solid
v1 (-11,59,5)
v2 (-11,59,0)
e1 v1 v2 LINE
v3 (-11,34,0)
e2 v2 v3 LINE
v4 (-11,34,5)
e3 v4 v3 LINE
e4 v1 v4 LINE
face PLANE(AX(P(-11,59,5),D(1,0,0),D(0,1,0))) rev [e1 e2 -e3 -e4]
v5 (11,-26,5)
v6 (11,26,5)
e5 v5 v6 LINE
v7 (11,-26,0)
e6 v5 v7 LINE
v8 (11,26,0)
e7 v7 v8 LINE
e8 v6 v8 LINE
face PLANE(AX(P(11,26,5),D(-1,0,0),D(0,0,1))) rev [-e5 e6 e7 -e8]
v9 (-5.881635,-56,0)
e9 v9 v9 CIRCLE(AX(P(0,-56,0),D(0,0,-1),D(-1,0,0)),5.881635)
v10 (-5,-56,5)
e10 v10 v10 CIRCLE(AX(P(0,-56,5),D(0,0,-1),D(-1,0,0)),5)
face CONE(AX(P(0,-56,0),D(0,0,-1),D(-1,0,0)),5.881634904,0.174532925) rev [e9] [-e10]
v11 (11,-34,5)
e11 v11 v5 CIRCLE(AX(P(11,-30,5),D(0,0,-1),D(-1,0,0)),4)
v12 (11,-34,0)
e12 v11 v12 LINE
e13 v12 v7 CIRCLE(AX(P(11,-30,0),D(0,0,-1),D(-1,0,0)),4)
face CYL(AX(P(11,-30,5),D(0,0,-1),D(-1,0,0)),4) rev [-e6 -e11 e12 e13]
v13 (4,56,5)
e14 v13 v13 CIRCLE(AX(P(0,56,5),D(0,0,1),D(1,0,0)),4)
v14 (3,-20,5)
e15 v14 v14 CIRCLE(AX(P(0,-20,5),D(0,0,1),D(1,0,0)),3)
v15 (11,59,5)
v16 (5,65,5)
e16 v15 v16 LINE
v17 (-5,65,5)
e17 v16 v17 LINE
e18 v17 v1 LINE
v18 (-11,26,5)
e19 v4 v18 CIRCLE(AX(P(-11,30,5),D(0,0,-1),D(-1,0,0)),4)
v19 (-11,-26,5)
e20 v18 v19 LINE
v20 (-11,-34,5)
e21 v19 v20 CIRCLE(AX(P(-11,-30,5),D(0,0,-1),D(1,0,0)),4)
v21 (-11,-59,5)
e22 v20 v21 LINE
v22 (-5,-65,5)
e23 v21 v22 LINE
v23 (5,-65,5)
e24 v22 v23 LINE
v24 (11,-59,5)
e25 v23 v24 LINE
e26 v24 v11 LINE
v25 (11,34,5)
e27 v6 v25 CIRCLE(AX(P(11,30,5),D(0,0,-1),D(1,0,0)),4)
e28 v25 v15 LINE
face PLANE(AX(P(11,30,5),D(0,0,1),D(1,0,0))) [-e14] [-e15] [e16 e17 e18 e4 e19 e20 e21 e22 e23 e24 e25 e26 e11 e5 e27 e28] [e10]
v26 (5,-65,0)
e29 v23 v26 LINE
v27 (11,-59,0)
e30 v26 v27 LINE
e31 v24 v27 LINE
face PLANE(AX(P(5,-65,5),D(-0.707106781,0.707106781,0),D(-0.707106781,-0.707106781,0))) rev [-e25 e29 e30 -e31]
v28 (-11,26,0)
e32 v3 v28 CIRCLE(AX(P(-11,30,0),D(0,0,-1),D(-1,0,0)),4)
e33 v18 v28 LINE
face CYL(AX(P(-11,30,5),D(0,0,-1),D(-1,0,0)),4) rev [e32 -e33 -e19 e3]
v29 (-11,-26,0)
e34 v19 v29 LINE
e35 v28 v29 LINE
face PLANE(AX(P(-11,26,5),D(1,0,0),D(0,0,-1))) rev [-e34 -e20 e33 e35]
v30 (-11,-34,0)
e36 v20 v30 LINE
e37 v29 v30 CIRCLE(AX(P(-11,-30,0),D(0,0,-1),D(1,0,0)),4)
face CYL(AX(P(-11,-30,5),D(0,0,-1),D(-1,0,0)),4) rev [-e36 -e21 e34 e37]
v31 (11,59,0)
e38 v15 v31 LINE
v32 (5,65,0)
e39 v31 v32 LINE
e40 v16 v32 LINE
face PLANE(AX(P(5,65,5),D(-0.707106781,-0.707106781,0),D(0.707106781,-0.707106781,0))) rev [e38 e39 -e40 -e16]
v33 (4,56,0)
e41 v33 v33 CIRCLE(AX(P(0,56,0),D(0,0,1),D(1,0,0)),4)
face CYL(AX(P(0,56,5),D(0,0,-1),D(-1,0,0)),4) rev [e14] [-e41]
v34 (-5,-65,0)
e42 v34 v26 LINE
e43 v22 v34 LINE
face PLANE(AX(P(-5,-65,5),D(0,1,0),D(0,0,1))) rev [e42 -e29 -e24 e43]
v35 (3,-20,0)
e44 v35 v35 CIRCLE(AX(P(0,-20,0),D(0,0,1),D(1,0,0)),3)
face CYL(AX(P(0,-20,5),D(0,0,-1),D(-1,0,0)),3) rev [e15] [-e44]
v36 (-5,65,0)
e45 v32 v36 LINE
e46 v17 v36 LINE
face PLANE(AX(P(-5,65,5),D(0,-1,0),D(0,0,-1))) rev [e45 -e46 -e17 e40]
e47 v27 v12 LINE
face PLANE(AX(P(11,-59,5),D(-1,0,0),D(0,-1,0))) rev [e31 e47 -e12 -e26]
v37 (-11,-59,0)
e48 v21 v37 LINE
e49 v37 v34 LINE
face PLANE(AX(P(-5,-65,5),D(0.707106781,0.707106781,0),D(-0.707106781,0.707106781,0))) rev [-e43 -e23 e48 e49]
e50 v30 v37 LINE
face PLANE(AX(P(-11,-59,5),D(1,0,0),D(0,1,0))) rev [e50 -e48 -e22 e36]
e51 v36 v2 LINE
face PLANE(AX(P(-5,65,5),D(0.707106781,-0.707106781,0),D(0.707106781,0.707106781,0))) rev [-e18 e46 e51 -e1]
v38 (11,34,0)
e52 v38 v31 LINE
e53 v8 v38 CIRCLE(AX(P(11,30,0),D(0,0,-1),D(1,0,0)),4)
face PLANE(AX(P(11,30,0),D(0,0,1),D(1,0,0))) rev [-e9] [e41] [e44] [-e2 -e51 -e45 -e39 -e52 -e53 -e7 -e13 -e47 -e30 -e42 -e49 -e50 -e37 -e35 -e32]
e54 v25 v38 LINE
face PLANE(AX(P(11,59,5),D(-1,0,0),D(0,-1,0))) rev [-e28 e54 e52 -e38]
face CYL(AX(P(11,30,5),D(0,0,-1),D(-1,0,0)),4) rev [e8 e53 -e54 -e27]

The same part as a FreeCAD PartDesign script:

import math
import FreeCAD as App
import Part
import Sketcher
from FreeCAD import Vector
Q = App.Units.Quantity

doc = App.newDocument("Part")
body = doc.addObject("PartDesign::Body", "Body")

sketch1 = body.newObject("Sketcher::SketchObject", "Sketch")
sketch1.AttachmentSupport = (doc.getObject("XY_Plane"), [""])
sketch1.MapMode = "FlatFace"
sketch1.addGeometry([
    Part.LineSegment(Vector(5, 65, 0), Vector(-5, 65, 0)),
    Part.LineSegment(Vector(-5, 65, 0), Vector(-11, 59, 0)),
    Part.LineSegment(Vector(-11, 59, 0), Vector(-11, 34, 0)),
    Part.ArcOfCircle(Part.Circle(Vector(-11, 30, 0), Vector(0, 0, 1), 4), math.radians(-90), math.radians(90)),
    Part.LineSegment(Vector(-11, 26, 0), Vector(-11, -26, 0)),
    Part.ArcOfCircle(Part.Circle(Vector(-11, -30, 0), Vector(0, 0, 1), 4), math.radians(-90), math.radians(90)),
    Part.LineSegment(Vector(-11, -34, 0), Vector(-11, -59, 0)),
    Part.LineSegment(Vector(-11, -59, 0), Vector(-5, -65, 0)),
    Part.LineSegment(Vector(-5, -65, 0), Vector(5, -65, 0)),
    Part.LineSegment(Vector(5, -65, 0), Vector(11, -59, 0)),
    Part.LineSegment(Vector(11, -59, 0), Vector(11, -34, 0)),
    Part.ArcOfCircle(Part.Circle(Vector(11, -30, 0), Vector(0, 0, 1), 4), math.radians(90), math.radians(270)),
    Part.LineSegment(Vector(11, -26, 0), Vector(11, 26, 0)),
    Part.ArcOfCircle(Part.Circle(Vector(11, 30, 0), Vector(0, 0, 1), 4), math.radians(90), math.radians(270)),
    Part.LineSegment(Vector(11, 34, 0), Vector(11, 59, 0)),
    Part.LineSegment(Vector(11, 59, 0), Vector(5, 65, 0)),
    Part.Circle(Vector(0, -20, 0), Vector(0, 0, 1), 3),
    Part.Circle(Vector(0, 56, 0), Vector(0, 0, 1), 4),
], False)
sketch1.addConstraint([
    Sketcher.Constraint("Coincident", 0, 2, 1, 1),
    Sketcher.Constraint("Coincident", 1, 2, 2, 1),
    Sketcher.Constraint("Coincident", 2, 2, 3, 2),
    Sketcher.Constraint("Coincident", 3, 1, 4, 1),
    Sketcher.Constraint("Coincident", 4, 2, 5, 2),
    Sketcher.Constraint("Coincident", 5, 1, 6, 1),
    Sketcher.Constraint("Coincident", 6, 2, 7, 1),
    Sketcher.Constraint("Coincident", 7, 2, 8, 1),
    Sketcher.Constraint("Coincident", 8, 2, 9, 1),
    Sketcher.Constraint("Coincident", 9, 2, 10, 1),
    Sketcher.Constraint("Coincident", 10, 2, 11, 2),
    Sketcher.Constraint("Coincident", 11, 1, 12, 1),
    Sketcher.Constraint("Coincident", 12, 2, 13, 2),
    Sketcher.Constraint("Coincident", 13, 1, 14, 1),
    Sketcher.Constraint("Coincident", 14, 2, 15, 1),
    Sketcher.Constraint("Coincident", 15, 2, 0, 1),
    Sketcher.Constraint("Horizontal", 0),
    Sketcher.Constraint("Vertical", 2),
    Sketcher.Constraint("Vertical", 4),
    Sketcher.Constraint("Vertical", 6),
    Sketcher.Constraint("Horizontal", 8),
    Sketcher.Constraint("Vertical", 10),
    Sketcher.Constraint("Vertical", 12),
    Sketcher.Constraint("Vertical", 14),
    Sketcher.Constraint("Equal", 3, 5),
    Sketcher.Constraint("Equal", 5, 11),
    Sketcher.Constraint("Equal", 11, 13),
    Sketcher.Constraint("Equal", 13, 17),
    Sketcher.Constraint("Symmetric", 3, 3, 11, 3, -1, 1),
    Sketcher.Constraint("Symmetric", 5, 3, 13, 3, -1, 1),
    Sketcher.Constraint("Symmetric", 0, 2, 8, 2, -1, 1),
    Sketcher.Constraint("Symmetric", 1, 2, 9, 2, -1, 1),
    Sketcher.Constraint("Symmetric", 6, 2, 14, 2, -1, 1),
    Sketcher.Constraint("Symmetric", 5, 3, 11, 3, -2),
    Sketcher.Constraint("Symmetric", 6, 2, 9, 2, -2),
    Sketcher.Constraint("PointOnObject", 16, 3, -2),
    Sketcher.Constraint("PointOnObject", 17, 3, -2),
    Sketcher.Constraint("Perpendicular", 1, 7),
    Sketcher.Constraint("Perpendicular", 9, 15),
    Sketcher.Constraint("Vertical", 5, 3, 1, 2),
    Sketcher.Constraint("Vertical", 2, 2, 3, 1),
    Sketcher.Constraint("Vertical", 0, 2, 7, 2),
    Sketcher.Constraint("Vertical", 10, 2, 11, 1),
    Sketcher.Constraint("Diameter", 16, 6.0),
    Sketcher.Constraint("Diameter", 17, 8.0),
    Sketcher.Constraint("DistanceX", 0, 2, 0, 1, 10.0),
    Sketcher.Constraint("DistanceY", 2, 2, 2, 1, 25.0),
    Sketcher.Constraint("DistanceY", 4, 2, 4, 1, 52.0),
    Sketcher.Constraint("DistanceX", 3, 3, -1, 1, 11.0),
    Sketcher.Constraint("DistanceY", 16, 3, -1, 1, 20.0),
    Sketcher.Constraint("DistanceY", -1, 1, 17, 3, 56.0),
])
pad1 = body.newObject("PartDesign::Pad", "Pad")
pad1.Profile = sketch1
pad1.Length = 5

sketch2 = body.newObject("Sketcher::SketchObject", "Sketch001")
sketch2.AttachmentSupport = (doc.getObject("YZ_Plane"), [""])
sketch2.MapMode = "FlatFace"
sketch2.addGeometry([
    Part.LineSegment(Vector(-50, 0, 0), Vector(-51, 5, 0)),
    Part.LineSegment(Vector(-51, 5, 0), Vector(-56, 5, 0)),
    Part.LineSegment(Vector(-56, 5, 0), Vector(-56, 0, 0)),
    Part.LineSegment(Vector(-56, 0, 0), Vector(-50, 0, 0)),
], False)
sketch2.addGeometry(Part.LineSegment(Vector(-56, 0, 0), Vector(-56, 5, 0)), True)
sketch2.addConstraint([
    Sketcher.Constraint("Coincident", 0, 2, 1, 1),
    Sketcher.Constraint("Coincident", 1, 2, 2, 1),
    Sketcher.Constraint("Coincident", 2, 2, 3, 1),
    Sketcher.Constraint("Coincident", 3, 2, 0, 1),
    Sketcher.Constraint("Horizontal", 1),
    Sketcher.Constraint("Vertical", 2),
    Sketcher.Constraint("Horizontal", 3),
    Sketcher.Constraint("Vertical", 4),
    Sketcher.Constraint("Coincident", 4, 1, 2, 2),
    Sketcher.Constraint("PointOnObject", 2, 2, -1),
    Sketcher.Constraint("Horizontal", 0, 2, 4, 2),
    Sketcher.Constraint("Equal", 1, 2),
    Sketcher.Constraint("DistanceX", 1, 2, 1, 1, 5.0),
    Sketcher.Constraint("Angle", 0, Q("100 deg")),
    Sketcher.Constraint("DistanceX", 0, 2, -1, 1, 51.0),
])
groove = body.newObject("PartDesign::Groove", "Groove")
groove.Profile = sketch2
groove.ReferenceAxis = (sketch2, ["Axis0"])
groove.Angle = 360

doc.recompute()
